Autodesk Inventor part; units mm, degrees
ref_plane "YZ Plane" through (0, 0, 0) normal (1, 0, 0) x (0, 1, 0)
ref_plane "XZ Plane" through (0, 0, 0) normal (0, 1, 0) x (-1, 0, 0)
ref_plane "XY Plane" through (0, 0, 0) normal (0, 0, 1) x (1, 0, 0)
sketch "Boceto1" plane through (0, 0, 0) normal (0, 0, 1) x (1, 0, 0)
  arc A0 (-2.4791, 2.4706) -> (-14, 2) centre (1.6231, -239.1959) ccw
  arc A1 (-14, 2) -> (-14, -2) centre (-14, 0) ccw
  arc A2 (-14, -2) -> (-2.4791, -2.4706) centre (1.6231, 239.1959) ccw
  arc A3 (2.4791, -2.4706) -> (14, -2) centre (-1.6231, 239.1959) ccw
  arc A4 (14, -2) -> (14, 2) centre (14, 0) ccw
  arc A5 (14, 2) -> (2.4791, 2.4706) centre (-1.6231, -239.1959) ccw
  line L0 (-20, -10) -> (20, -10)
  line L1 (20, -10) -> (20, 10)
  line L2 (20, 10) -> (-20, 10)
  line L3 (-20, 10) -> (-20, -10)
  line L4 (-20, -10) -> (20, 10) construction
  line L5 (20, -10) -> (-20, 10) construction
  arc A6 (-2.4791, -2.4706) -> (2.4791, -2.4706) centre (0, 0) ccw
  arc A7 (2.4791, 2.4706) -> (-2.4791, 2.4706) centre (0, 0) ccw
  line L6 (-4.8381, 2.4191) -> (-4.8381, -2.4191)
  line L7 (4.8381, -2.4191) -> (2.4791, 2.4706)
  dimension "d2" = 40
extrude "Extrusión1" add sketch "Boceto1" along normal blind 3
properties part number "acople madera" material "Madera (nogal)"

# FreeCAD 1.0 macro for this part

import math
import FreeCAD as App
import Part
import Sketcher
from FreeCAD import Vector

doc = App.newDocument("Part")
body = doc.addObject("PartDesign::Body", "Body")

# Sketch on XY plane
sketch1 = body.newObject("Sketcher::SketchObject", "Sketch")
sketch1.AttachmentSupport = (doc.getObject("XY_Plane"), [""])
sketch1.MapMode = "FlatFace"
sketch1.addGeometry(Part.LineSegment(Vector(-20, 10, 0), Vector(-20, -10, 0)), False)
sketch1.addGeometry(Part.LineSegment(Vector(-20, -10, 0), Vector(20, -10, 0)), False)
sketch1.addGeometry(Part.LineSegment(Vector(20, -10, 0), Vector(20, 10, 0)), False)
sketch1.addGeometry(Part.LineSegment(Vector(20, 10, 0), Vector(-20, 10, 0)), False)
sketch1.addGeometry(Part.ArcOfCircle(Part.Circle(Vector(1.625009, -239.261926, 0), Vector(0, 0, 1), 241.767363), math.radians(90.972668), math.radians(93.70551)), False)
sketch1.addGeometry(Part.ArcOfCircle(Part.Circle(Vector(0, 0, 0), Vector(0, 0, 1), 3.499972), math.radians(44.901607), math.radians(135.098393)), False)
sketch1.addGeometry(Part.ArcOfCircle(Part.Circle(Vector(-1.619619, -239.129974, 0), Vector(0, 0, 1), 241.635339), math.radians(86.293743), math.radians(89.028079)), False)
sketch1.addGeometry(Part.ArcOfCircle(Part.Circle(Vector(14, 0, 0), Vector(0, 0, 1), 2), math.radians(-90), math.radians(90)), False)
sketch1.addGeometry(Part.ArcOfCircle(Part.Circle(Vector(-1.625009, 239.261926, 0), Vector(0, 0, 1), 241.767363), math.radians(-89.027332), math.radians(-86.29449)), False)
sketch1.addGeometry(Part.ArcOfCircle(Part.Circle(Vector(0, 0, 0), Vector(0, 0, 1), 3.499972), math.radians(-135.098393), math.radians(-44.901607)), False)
sketch1.addGeometry(Part.ArcOfCircle(Part.Circle(Vector(1.619619, 239.129974, 0), Vector(0, 0, 1), 241.635339), math.radians(-93.706257), math.radians(-90.971921)), False)
sketch1.addGeometry(Part.ArcOfCircle(Part.Circle(Vector(-14, 0, 0), Vector(0, 0, 1), 2), math.radians(90), math.radians(270)), False)
sketch1.addConstraint(Sketcher.Constraint("Coincident", 0, 2, 1, 1))
sketch1.addConstraint(Sketcher.Constraint("Coincident", 1, 2, 2, 1))
sketch1.addConstraint(Sketcher.Constraint("Coincident", 2, 2, 3, 1))
sketch1.addConstraint(Sketcher.Constraint("Coincident", 3, 2, 0, 1))
sketch1.addConstraint(Sketcher.Constraint("Coincident", 4, 1, 5, 2))
sketch1.addConstraint(Sketcher.Constraint("Coincident", 5, 1, 6, 2))
sketch1.addConstraint(Sketcher.Constraint("Coincident", 6, 1, 7, 2))
sketch1.addConstraint(Sketcher.Constraint("Coincident", 7, 1, 8, 2))
sketch1.addConstraint(Sketcher.Constraint("Coincident", 8, 1, 9, 2))
sketch1.addConstraint(Sketcher.Constraint("Coincident", 9, 1, 10, 2))
sketch1.addConstraint(Sketcher.Constraint("Coincident", 10, 1, 11, 2))
sketch1.addConstraint(Sketcher.Constraint("Coincident", 11, 1, 4, 2))
sketch1.addConstraint(Sketcher.Constraint("Vertical", 0))
sketch1.addConstraint(Sketcher.Constraint("Horizontal", 1))
sketch1.addConstraint(Sketcher.Constraint("Vertical", 2))
sketch1.addConstraint(Sketcher.Constraint("Horizontal", 3))
sketch1.addConstraint(Sketcher.Constraint("Coincident", 5, 3, -1, 1))
sketch1.addConstraint(Sketcher.Constraint("Coincident", 9, 3, -1, 1))
sketch1.addConstraint(Sketcher.Constraint("Equal", 4, 8))
sketch1.addConstraint(Sketcher.Constraint("Equal", 5, 9))
sketch1.addConstraint(Sketcher.Constraint("Equal", 6, 10))
sketch1.addConstraint(Sketcher.Constraint("Equal", 7, 11))
sketch1.addConstraint(Sketcher.Constraint("Symmetric", 4, 3, 8, 3, -1, 1))
sketch1.addConstraint(Sketcher.Constraint("Symmetric", 6, 3, 10, 3, -1, 1))
sketch1.addConstraint(Sketcher.Constraint("Symmetric", 7, 3, 11, 3, -1, 1))
sketch1.addConstraint(Sketcher.Constraint("Symmetric", 0, 2, 2, 2, -1, 1))
sketch1.addConstraint(Sketcher.Constraint("Symmetric", 7, 1, 10, 1, -2))
sketch1.addConstraint(Sketcher.Constraint("Horizontal", 4, 1, 5, 1))
sketch1.addConstraint(Sketcher.Constraint("Vertical", 7, 3, 6, 1))
sketch1.addConstraint(Sketcher.Constraint("DistanceX", 1, 1, 1, 2, 40.0))
sketch1.addConstraint(Sketcher.Constraint("Radius", 7, 2.0))
sketch1.addConstraint(Sketcher.Constraint("Radius", 5, 3.5))
sketch1.addConstraint(Sketcher.Constraint("DistanceY", 0, 2, 0, 1, 20.0))
sketch1.addConstraint(Sketcher.Constraint("DistanceX", -1, 1, 7, 3, 14.0))
sketch1.addConstraint(Sketcher.Constraint("Radius", 4, 241.7674))
sketch1.addConstraint(Sketcher.Constraint("Radius", 6, 241.6353))
sketch1.addConstraint(Sketcher.Constraint("DistanceY", 6, 3, -1, 1, 239.13))
pad1 = body.newObject("PartDesign::Pad", "Pad")
pad1.Profile = sketch1
pad1.Length = 3

doc.recompute()
